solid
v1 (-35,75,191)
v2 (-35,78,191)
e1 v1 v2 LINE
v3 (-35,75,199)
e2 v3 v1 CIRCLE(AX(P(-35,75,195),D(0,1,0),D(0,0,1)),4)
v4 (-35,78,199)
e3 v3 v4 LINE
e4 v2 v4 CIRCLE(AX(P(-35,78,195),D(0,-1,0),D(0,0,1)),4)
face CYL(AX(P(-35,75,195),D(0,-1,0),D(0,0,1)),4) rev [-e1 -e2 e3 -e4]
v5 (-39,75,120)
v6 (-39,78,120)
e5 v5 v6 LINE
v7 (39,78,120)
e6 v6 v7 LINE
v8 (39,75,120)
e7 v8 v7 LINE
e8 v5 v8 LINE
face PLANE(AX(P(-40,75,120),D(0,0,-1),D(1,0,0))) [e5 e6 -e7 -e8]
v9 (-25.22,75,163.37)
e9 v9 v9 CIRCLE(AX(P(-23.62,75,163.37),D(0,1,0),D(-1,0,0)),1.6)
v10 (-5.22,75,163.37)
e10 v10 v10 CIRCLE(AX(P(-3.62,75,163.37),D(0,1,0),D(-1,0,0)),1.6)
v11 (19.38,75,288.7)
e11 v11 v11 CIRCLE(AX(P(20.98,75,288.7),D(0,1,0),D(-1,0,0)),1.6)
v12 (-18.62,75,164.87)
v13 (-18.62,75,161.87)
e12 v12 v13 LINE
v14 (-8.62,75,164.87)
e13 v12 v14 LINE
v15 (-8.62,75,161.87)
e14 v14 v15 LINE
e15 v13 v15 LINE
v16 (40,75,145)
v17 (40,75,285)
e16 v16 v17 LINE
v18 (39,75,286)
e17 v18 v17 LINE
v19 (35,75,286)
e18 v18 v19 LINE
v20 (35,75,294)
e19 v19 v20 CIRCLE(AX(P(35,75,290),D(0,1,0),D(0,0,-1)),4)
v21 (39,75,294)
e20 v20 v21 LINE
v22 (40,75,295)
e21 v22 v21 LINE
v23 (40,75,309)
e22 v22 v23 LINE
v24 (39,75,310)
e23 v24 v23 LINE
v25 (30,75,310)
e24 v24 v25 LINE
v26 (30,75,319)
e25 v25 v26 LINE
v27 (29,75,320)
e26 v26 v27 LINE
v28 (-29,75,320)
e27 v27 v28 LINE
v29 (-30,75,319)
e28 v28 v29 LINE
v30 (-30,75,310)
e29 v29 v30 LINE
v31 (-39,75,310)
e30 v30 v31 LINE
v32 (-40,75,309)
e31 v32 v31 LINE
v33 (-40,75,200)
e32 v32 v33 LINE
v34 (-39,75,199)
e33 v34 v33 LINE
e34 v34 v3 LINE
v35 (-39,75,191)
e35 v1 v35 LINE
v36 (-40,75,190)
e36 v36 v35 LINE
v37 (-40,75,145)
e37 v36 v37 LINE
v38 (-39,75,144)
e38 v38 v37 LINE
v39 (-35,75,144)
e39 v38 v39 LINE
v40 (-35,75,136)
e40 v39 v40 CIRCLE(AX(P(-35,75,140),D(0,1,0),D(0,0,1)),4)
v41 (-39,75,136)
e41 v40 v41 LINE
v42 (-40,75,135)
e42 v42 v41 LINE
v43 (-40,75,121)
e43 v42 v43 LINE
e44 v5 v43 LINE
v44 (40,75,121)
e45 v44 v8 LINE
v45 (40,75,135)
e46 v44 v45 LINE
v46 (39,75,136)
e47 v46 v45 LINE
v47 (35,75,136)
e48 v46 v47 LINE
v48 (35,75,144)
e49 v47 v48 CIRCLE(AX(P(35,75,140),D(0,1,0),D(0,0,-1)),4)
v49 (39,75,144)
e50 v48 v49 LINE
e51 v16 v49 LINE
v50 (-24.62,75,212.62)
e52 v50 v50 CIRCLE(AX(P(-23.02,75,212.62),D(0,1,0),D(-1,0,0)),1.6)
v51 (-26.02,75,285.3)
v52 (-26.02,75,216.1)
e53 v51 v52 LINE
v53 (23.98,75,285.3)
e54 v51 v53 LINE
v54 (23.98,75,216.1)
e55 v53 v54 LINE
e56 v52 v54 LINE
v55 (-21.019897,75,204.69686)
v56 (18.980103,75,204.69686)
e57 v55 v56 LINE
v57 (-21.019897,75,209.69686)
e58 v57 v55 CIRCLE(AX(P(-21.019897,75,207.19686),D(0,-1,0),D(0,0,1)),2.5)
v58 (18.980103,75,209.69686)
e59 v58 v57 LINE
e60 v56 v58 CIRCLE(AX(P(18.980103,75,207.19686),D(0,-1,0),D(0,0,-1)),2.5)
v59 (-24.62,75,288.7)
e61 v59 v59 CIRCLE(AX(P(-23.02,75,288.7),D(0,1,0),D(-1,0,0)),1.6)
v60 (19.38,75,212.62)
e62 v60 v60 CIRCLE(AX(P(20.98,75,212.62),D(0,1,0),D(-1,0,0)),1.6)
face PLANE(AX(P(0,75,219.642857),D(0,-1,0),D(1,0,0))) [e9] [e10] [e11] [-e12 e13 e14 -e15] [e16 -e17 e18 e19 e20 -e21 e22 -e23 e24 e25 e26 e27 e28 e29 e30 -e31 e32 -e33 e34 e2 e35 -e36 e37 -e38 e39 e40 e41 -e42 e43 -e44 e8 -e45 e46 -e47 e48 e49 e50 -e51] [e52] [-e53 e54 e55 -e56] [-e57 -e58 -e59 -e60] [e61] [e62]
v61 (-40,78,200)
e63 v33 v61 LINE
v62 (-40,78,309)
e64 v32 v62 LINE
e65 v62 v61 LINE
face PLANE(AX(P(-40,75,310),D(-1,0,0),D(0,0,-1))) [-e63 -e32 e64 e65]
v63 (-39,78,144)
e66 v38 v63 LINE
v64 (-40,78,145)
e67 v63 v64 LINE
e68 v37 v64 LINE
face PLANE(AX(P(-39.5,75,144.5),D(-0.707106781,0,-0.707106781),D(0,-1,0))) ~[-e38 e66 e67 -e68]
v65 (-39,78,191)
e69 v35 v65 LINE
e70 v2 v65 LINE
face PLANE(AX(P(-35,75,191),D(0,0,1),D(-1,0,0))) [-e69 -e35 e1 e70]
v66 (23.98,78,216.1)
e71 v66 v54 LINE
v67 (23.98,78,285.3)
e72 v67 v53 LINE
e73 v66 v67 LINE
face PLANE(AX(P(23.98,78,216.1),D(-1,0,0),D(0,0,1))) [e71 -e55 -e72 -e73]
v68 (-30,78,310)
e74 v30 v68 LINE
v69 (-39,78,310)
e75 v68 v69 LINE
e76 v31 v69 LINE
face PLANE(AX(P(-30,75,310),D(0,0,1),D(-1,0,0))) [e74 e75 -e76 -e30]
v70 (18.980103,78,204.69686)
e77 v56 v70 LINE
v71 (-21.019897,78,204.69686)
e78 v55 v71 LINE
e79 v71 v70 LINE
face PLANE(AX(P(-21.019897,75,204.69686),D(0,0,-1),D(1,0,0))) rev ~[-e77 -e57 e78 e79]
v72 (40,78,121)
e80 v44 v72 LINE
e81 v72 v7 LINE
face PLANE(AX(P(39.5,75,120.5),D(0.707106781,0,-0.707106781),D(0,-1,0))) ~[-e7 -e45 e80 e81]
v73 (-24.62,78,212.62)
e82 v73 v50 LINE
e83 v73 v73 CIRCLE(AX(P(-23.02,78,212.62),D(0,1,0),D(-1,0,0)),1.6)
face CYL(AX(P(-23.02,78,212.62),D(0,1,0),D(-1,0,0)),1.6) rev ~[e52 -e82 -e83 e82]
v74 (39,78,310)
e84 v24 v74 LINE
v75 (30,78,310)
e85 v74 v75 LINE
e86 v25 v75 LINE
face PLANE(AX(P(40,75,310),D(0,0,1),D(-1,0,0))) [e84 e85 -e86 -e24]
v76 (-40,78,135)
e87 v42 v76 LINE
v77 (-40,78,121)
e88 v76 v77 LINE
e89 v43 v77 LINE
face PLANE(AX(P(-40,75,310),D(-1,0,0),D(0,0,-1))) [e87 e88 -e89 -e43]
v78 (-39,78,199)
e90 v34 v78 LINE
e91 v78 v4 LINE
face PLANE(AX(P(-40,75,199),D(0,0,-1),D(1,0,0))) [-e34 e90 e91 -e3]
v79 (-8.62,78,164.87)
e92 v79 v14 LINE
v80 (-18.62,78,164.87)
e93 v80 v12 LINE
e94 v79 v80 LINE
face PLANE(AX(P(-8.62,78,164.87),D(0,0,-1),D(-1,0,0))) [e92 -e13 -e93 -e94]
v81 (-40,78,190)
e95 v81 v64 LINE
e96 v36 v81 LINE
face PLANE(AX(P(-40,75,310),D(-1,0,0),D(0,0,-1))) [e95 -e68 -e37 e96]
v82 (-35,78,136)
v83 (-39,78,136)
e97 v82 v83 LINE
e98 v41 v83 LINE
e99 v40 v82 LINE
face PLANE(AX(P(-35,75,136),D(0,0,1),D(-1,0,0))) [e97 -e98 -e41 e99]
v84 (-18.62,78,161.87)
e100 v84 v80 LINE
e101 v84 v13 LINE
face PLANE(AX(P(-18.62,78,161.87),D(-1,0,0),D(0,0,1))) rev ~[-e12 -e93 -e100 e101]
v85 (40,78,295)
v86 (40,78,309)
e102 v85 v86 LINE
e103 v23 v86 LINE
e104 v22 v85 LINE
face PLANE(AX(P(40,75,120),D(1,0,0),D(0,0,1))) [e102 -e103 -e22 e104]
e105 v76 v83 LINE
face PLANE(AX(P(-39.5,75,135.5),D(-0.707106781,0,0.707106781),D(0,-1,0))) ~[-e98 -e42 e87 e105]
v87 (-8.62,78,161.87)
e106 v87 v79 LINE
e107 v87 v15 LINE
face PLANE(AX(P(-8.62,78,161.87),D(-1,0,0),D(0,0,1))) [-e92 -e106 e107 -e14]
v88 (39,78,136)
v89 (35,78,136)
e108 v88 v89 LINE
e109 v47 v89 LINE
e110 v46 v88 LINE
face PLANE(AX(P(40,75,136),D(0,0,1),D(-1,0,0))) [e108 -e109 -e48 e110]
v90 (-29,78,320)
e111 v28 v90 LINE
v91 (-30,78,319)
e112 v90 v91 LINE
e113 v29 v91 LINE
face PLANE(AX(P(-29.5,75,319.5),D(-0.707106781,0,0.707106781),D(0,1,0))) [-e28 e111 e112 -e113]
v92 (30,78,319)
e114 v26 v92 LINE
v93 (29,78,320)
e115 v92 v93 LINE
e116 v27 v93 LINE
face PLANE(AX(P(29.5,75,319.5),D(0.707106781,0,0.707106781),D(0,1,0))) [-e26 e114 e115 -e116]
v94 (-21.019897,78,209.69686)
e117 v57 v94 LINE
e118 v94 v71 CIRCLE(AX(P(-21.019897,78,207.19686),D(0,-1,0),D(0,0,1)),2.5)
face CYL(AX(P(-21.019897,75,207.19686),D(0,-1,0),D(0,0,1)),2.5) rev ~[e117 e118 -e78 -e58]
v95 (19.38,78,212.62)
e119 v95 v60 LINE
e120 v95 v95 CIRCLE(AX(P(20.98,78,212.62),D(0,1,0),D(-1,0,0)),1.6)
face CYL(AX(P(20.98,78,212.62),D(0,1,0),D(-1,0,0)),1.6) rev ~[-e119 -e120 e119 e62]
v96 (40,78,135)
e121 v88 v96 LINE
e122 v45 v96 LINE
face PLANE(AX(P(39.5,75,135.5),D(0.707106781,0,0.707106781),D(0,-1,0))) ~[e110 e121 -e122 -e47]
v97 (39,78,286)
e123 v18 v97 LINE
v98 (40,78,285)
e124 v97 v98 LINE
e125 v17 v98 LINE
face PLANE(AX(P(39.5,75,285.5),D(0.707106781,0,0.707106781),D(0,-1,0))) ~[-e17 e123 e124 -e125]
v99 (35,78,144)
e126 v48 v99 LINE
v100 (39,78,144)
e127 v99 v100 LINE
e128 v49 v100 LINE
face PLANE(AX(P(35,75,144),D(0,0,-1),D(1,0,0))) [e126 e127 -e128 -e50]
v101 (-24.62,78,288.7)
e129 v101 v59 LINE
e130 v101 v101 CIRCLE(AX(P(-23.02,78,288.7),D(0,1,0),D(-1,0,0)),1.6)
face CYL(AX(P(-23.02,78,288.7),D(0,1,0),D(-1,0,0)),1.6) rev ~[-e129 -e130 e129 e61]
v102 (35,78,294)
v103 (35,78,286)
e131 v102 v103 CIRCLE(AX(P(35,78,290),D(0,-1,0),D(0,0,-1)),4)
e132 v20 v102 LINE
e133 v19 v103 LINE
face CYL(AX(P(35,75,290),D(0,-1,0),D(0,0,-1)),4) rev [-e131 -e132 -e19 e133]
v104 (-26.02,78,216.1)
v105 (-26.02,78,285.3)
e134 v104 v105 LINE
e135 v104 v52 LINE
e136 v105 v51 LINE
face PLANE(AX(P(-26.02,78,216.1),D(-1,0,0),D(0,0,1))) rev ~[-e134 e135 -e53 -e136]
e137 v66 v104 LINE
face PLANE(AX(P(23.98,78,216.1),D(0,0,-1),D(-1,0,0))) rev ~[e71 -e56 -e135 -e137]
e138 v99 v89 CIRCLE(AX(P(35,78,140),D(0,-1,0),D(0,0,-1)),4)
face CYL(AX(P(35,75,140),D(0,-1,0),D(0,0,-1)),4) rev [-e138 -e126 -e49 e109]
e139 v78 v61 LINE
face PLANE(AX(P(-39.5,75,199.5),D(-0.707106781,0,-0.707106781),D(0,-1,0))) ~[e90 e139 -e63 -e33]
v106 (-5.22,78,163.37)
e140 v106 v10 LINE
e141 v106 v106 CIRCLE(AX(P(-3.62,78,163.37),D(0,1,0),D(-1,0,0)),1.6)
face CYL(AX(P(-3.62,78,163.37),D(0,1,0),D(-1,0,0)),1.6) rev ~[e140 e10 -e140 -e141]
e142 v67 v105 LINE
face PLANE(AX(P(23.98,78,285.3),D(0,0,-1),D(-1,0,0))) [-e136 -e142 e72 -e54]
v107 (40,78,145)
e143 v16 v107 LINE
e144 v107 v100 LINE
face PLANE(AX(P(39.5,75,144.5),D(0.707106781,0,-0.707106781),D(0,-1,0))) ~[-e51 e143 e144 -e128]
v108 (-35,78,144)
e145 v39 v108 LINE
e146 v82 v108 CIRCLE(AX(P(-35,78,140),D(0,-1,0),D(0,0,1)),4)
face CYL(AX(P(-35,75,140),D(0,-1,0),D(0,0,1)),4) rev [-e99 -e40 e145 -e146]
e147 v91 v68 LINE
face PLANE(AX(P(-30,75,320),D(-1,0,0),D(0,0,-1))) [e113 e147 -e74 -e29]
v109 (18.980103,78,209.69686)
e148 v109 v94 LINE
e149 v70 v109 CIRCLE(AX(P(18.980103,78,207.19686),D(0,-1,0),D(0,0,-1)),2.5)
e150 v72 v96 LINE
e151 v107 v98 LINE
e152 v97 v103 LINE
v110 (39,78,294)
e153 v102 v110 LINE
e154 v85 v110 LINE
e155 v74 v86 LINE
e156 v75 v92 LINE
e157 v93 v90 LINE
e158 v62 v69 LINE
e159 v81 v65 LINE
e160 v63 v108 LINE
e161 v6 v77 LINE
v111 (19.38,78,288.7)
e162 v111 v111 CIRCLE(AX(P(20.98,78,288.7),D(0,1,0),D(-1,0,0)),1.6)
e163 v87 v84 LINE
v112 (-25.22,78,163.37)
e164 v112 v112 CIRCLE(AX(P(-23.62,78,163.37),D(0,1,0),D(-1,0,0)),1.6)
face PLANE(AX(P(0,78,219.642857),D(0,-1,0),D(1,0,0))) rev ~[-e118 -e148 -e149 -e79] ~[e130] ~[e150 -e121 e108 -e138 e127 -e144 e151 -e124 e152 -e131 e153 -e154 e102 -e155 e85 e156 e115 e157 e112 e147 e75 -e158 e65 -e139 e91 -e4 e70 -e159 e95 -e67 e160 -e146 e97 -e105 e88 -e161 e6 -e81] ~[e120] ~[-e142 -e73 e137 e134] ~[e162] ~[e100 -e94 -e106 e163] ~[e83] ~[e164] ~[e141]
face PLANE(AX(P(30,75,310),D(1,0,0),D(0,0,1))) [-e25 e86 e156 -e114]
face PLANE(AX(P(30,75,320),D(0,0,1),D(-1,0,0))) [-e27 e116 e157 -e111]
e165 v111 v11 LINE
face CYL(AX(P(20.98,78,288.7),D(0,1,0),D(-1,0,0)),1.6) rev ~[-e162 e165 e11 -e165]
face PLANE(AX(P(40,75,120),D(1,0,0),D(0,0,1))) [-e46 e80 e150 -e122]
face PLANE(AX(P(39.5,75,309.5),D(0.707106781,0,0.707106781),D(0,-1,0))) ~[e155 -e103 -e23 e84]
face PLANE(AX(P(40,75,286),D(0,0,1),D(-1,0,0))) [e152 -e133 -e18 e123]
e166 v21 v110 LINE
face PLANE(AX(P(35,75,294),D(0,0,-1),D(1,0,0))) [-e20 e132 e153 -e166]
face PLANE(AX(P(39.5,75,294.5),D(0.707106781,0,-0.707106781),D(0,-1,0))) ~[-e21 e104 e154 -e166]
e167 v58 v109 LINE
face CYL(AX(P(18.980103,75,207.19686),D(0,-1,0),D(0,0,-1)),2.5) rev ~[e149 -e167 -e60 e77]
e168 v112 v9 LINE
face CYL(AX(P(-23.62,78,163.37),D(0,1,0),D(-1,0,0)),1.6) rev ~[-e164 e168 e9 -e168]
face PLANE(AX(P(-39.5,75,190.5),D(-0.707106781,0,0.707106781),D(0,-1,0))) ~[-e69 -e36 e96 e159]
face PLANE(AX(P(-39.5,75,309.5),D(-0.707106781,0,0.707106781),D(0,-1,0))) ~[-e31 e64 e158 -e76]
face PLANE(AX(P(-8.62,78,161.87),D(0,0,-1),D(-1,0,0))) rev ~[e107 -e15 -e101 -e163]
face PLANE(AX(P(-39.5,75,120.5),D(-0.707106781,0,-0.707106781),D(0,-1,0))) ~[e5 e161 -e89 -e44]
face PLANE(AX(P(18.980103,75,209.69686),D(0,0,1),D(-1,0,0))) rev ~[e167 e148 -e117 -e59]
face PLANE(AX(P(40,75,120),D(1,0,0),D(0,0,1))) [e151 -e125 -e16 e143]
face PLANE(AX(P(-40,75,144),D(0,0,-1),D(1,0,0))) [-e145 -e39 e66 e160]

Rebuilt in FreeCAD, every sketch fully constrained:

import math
import FreeCAD as App
import Part
import Sketcher

V = App.Vector


def edges_at(feature, points):
    """Names of the edges that pass closest to the given points."""
    edges = feature.Shape.Edges
    near = lambda p: min(range(len(edges)), key=lambda i: edges[i].distToShape(Part.Vertex(*p))[0])
    return sorted({f"Edge{near(p) + 1}" for p in points})


def add_polygon(sketch, points):
    """Adds a closed chain of lines whose ends are joined by coincident constraints."""
    first, n = sketch.GeometryCount, len(points)
    for a, b in zip(points, points[1:] + points[:1]):
        sketch.addGeometry(Part.LineSegment(App.Vector(*a, 0), App.Vector(*b, 0)), False)
    for i in range(n):
        sketch.addConstraint(Sketcher.Constraint("Coincident", first + i, 2, first + (i + 1) % n, 1))

doc = App.newDocument("Part")
body = doc.addObject("PartDesign::Body", "Body")

# Sketch on XZ plane
sketch1 = body.newObject("Sketcher::SketchObject", "Sketch")
sketch1.AttachmentSupport = (doc.getObject("XZ_Plane"), [""])
sketch1.MapMode = "FlatFace"
add_polygon(sketch1, [(30, 310), (40, 310), (40, 120), (-40, 120), (-40, 310), (-30, 310), (-30, 320), (30, 320)])  # lines 0-7
sketch1.addConstraint([
    Sketcher.Constraint("Horizontal", 0),
    Sketcher.Constraint("Vertical", 1),
    Sketcher.Constraint("Horizontal", 2),
    Sketcher.Constraint("Vertical", 3),
    Sketcher.Constraint("Horizontal", 4),
    Sketcher.Constraint("Vertical", 5),
    Sketcher.Constraint("Horizontal", 6),
    Sketcher.Constraint("Vertical", 7),
    Sketcher.Constraint("Symmetric", 0, 2, 3, 2, -2),
    Sketcher.Constraint("Equal", 0, 4),
    Sketcher.Constraint("Equal", 4, 5),
    Sketcher.Constraint("DistanceX", 0, 1, 0, 2, 10.0),
    Sketcher.Constraint("DistanceX", 2, 2, 2, 1, 80.0),
    Sketcher.Constraint("DistanceY", 1, 2, 1, 1, 190.0),
    Sketcher.Constraint("DistanceY", -1, 1, 0, 2, 310.0),
])
pad1 = body.newObject("PartDesign::Pad", "Pad")
pad1.Profile = sketch1
pad1.Length = 3
pad1.Reversed = True

# Sketch on XZ plane
sketch2 = body.newObject("Sketcher::SketchObject", "Sketch001")
sketch2.AttachmentSupport = (doc.getObject("XZ_Plane"), [""])
sketch2.MapMode = "FlatFace"
sketch2.addGeometry([
    Part.ArcOfCircle(Part.Circle(V(40, 290, 0), V(0, 0, 1), 4), math.radians(-90), math.radians(90)),  # 0
    Part.LineSegment(V(40, 286, 0), V(35, 286, 0)),  # 1
    Part.ArcOfCircle(Part.Circle(V(35, 290, 0), V(0, 0, 1), 4), math.radians(90), math.radians(270)),  # 2
    Part.LineSegment(V(35, 294, 0), V(40, 294, 0)),  # 3
    Part.ArcOfCircle(Part.Circle(V(40, 140, 0), V(0, 0, 1), 4), math.radians(-90), math.radians(90)),  # 4
    Part.LineSegment(V(40, 136, 0), V(35, 136, 0)),  # 5
    Part.ArcOfCircle(Part.Circle(V(35, 140, 0), V(0, 0, 1), 4), math.radians(90), math.radians(270)),  # 6
    Part.LineSegment(V(35, 144, 0), V(40, 144, 0)),  # 7
    Part.ArcOfCircle(Part.Circle(V(-40, 140, 0), V(0, 0, 1), 4), math.radians(90), math.radians(270)),  # 8
    Part.LineSegment(V(-40, 144, 0), V(-35, 144, 0)),  # 9
    Part.ArcOfCircle(Part.Circle(V(-35, 140, 0), V(0, 0, 1), 4), math.radians(-90), math.radians(90)),  # 10
    Part.LineSegment(V(-35, 136, 0), V(-40, 136, 0)),  # 11
    Part.ArcOfCircle(Part.Circle(V(-40, 195, 0), V(0, 0, 1), 4), math.radians(90), math.radians(270)),  # 12
    Part.LineSegment(V(-40, 199, 0), V(-35, 199, 0)),  # 13
    Part.ArcOfCircle(Part.Circle(V(-35, 195, 0), V(0, 0, 1), 4), math.radians(-90), math.radians(90)),  # 14
    Part.LineSegment(V(-35, 191, 0), V(-40, 191, 0)),  # 15
], False)
sketch2.addConstraint([
    Sketcher.Constraint("Tangent", 0, 1, 1, 1),
    Sketcher.Constraint("Tangent", 1, 2, 2, 2),
    Sketcher.Constraint("Tangent", 2, 1, 3, 1),
    Sketcher.Constraint("Tangent", 3, 2, 0, 2),
    Sketcher.Constraint("Tangent", 4, 1, 5, 1),
    Sketcher.Constraint("Tangent", 5, 2, 6, 2),
    Sketcher.Constraint("Tangent", 6, 1, 7, 1),
    Sketcher.Constraint("Tangent", 7, 2, 4, 2),
    Sketcher.Constraint("Tangent", 8, 1, 9, 1),
    Sketcher.Constraint("Tangent", 9, 2, 10, 2),
    Sketcher.Constraint("Tangent", 10, 1, 11, 1),
    Sketcher.Constraint("Tangent", 11, 2, 8, 2),
    Sketcher.Constraint("Tangent", 12, 1, 13, 1),
    Sketcher.Constraint("Tangent", 13, 2, 14, 2),
    Sketcher.Constraint("Tangent", 14, 1, 15, 1),
    Sketcher.Constraint("Tangent", 15, 2, 12, 2),
    Sketcher.Constraint("Horizontal", 1),
    Sketcher.Constraint("Horizontal", 3),
    Sketcher.Constraint("Horizontal", 5),
    Sketcher.Constraint("Horizontal", 7),
    Sketcher.Constraint("Horizontal", 9),
    Sketcher.Constraint("Horizontal", 11),
    Sketcher.Constraint("Horizontal", 13),
    Sketcher.Constraint("Horizontal", 15),
    Sketcher.Constraint("Equal", 2, 4),
    Sketcher.Constraint("Equal", 6, 8),
    Sketcher.Constraint("Equal", 10, 12),
    Sketcher.Constraint("Symmetric", 4, 3, 8, 3, -2),
    Sketcher.Constraint("Vertical", 0, 3, 4, 3),
    Sketcher.Constraint("Vertical", 2, 3, 6, 3),
    Sketcher.Constraint("Vertical", 8, 3, 12, 3),
    Sketcher.Constraint("Vertical", 10, 3, 14, 3),
    Sketcher.Constraint("Equal", 7, 9),
    Sketcher.Constraint("Radius", 0, 4.0),
    Sketcher.Constraint("DistanceX", 1, 2, 1, 1, 5.0),
    Sketcher.Constraint("DistanceX", -1, 1, 0, 3, 40.0),
    Sketcher.Constraint("DistanceY", -1, 1, 0, 3, 290.0),
    Sketcher.Constraint("DistanceY", -1, 1, 4, 3, 140.0),
    Sketcher.Constraint("DistanceY", -1, 1, 12, 3, 195.0),
])
pocket1 = body.newObject("PartDesign::Pocket", "Pocket")
pocket1.Profile = sketch2
pocket1.Type = "ThroughAll"
doc.recompute()

chamfer = body.newObject("PartDesign::Chamfer", "Chamfer")
chamfer.Base = (pocket1, edges_at(pocket1, [
    (40, 1.5, 310),
    (30, 1.5, 320),
    (40, 1.5, 294),
    (40, 1.5, 286),
    (-40, 1.5, 310),
    (-30, 1.5, 320),
    (40, 1.5, 144),
    (40, 1.5, 136),
    (40, 1.5, 120),
    (-40, 1.5, 120),
    (-40, 1.5, 136),
    (-40, 1.5, 144),
    (-40, 1.5, 191),
    (-40, 1.5, 199),
]))
chamfer.Size = 1

# Sketch on XZ plane
sketch3 = body.newObject("Sketcher::SketchObject", "Sketch002")
sketch3.AttachmentSupport = (doc.getObject("XZ_Plane"), [""])
sketch3.MapMode = "FlatFace"
sketch3.AttachmentOffset = App.Placement(V(0, 0, -3), App.Rotation())
sketch3.addGeometry(Part.Circle(V(-23.02, 212.62, 0), V(0, 0, 1), 1.6), False)  # 0
sketch3.addGeometry(Part.Circle(V(20.98, 212.62, 0), V(0, 0, 1), 1.6), False)  # 1
sketch3.addGeometry(Part.Circle(V(20.98, 288.7, 0), V(0, 0, 1), 1.6), False)  # 2
sketch3.addGeometry(Part.Circle(V(-23.02, 288.7, 0), V(0, 0, 1), 1.6), False)  # 3
add_polygon(sketch3, [(23.98, 285.3), (23.98, 216.1), (-26.02, 216.1), (-26.02, 285.3)])  # lines 4-7
sketch3.addConstraint([
    Sketcher.Constraint("Vertical", 4),
    Sketcher.Constraint("Horizontal", 5),
    Sketcher.Constraint("Vertical", 6),
    Sketcher.Constraint("Horizontal", 7),
    Sketcher.Constraint("Equal", 0, 1),
    Sketcher.Constraint("Equal", 1, 2),
    Sketcher.Constraint("Equal", 2, 3),
    Sketcher.Constraint("Horizontal", 0, 3, 1, 3),
    Sketcher.Constraint("Horizontal", 2, 3, 3, 3),
    Sketcher.Constraint("Vertical", 1, 3, 2, 3),
    Sketcher.Constraint("Vertical", 0, 3, 3, 3),
    Sketcher.Constraint("Diameter", 0, 3.2),
    Sketcher.Constraint("DistanceX", 5, 2, 5, 1, 50.0),
    Sketcher.Constraint("DistanceY", 4, 2, 4, 1, 69.2),
    Sketcher.Constraint("DistanceX", 0, 3, 1, 3, 44.0),
    Sketcher.Constraint("DistanceX", 1, 3, 4, 2, 3.0),
    Sketcher.Constraint("DistanceY", -1, 1, 2, 3, 288.7),
    Sketcher.Constraint("DistanceY", -1, 1, 4, 2, 216.1),
    Sketcher.Constraint("DistanceX", 0, 3, -1, 1, 23.02),
    Sketcher.Constraint("DistanceY", -1, 1, 0, 3, 212.62),
])
pocket2 = body.newObject("PartDesign::Pocket", "Pocket001")
pocket2.Profile = sketch3
pocket2.Type = "ThroughAll"
pocket2.Reversed = True

# Sketch on XZ plane
sketch4 = body.newObject("Sketcher::SketchObject", "Sketch003")
sketch4.AttachmentSupport = (doc.getObject("XZ_Plane"), [""])
sketch4.MapMode = "FlatFace"
sketch4.AttachmentOffset = App.Placement(V(0, 0, -3), App.Rotation())
sketch4.addGeometry(Part.Circle(V(-23.62, 163.37, 0), V(0, 0, 1), 1.6), False)  # 0
sketch4.addGeometry(Part.Circle(V(-3.62, 163.37, 0), V(0, 0, 1), 1.6), False)  # 1
add_polygon(sketch4, [(-8.62, 164.87), (-8.62, 161.87), (-18.62, 161.87), (-18.62, 164.87)])  # lines 2-5
sketch4.addConstraint([
    Sketcher.Constraint("Vertical", 2),
    Sketcher.Constraint("Horizontal", 3),
    Sketcher.Constraint("Vertical", 4),
    Sketcher.Constraint("Horizontal", 5),
    Sketcher.Constraint("Equal", 0, 1),
    Sketcher.Constraint("Horizontal", 0, 3, 1, 3),
    Sketcher.Constraint("Diameter", 0, 3.2),
    Sketcher.Constraint("DistanceX", 3, 2, 3, 1, 10.0),
    Sketcher.Constraint("DistanceY", 2, 2, 2, 1, 3.0),
    Sketcher.Constraint("DistanceX", 0, 3, 1, 3, 20.0),
    Sketcher.Constraint("DistanceX", 2, 2, 1, 3, 5.0),
    Sketcher.Constraint("DistanceY", 2, 2, 1, 3, 1.5),
    Sketcher.Constraint("DistanceX", 0, 3, -1, 1, 23.62),
    Sketcher.Constraint("DistanceY", -1, 1, 0, 3, 163.37),
])
pocket3 = body.newObject("PartDesign::Pocket", "Pocket002")
pocket3.Profile = sketch4
pocket3.Type = "ThroughAll"
pocket3.Reversed = True

# Sketch on XZ plane
sketch5 = body.newObject("Sketcher::SketchObject", "Sketch004")
sketch5.AttachmentSupport = (doc.getObject("XZ_Plane"), [""])
sketch5.MapMode = "FlatFace"
sketch5.addGeometry([
    Part.ArcOfCircle(Part.Circle(V(-21.019897, 207.19686, 0), V(0, 0, 1), 2.5), math.radians(90), math.radians(270)),
    Part.LineSegment(V(-21.019897, 204.69686, 0), V(18.980103, 204.69686, 0)),
    Part.ArcOfCircle(Part.Circle(V(18.980103, 207.19686, 0), V(0, 0, 1), 2.5), math.radians(-90), math.radians(90)),
    Part.LineSegment(V(18.980103, 209.69686, 0), V(-21.019897, 209.69686, 0)),
], False)
sketch5.addConstraint([
    Sketcher.Constraint("Tangent", 0, 2, 1, 1),
    Sketcher.Constraint("Tangent", 1, 2, 2, 1),
    Sketcher.Constraint("Tangent", 2, 2, 3, 1),
    Sketcher.Constraint("Tangent", 3, 2, 0, 1),
    Sketcher.Constraint("Horizontal", 1),
    Sketcher.Constraint("Horizontal", 3),
    Sketcher.Constraint("Radius", 0, 2.5),
    Sketcher.Constraint("DistanceX", 1, 1, 1, 2, 40.0),
    Sketcher.Constraint("DistanceY", -1, 1, 0, 3, 207.19686),
    Sketcher.Constraint("DistanceX", 0, 3, -1, 1, 21.019897),
])
pocket4 = body.newObject("PartDesign::Pocket", "Pocket003")
pocket4.Profile = sketch5
pocket4.Type = "ThroughAll"
body2 = doc.addObject("PartDesign::Body", "Body001")
doc.recompute()

body.Placement = App.Placement(V(0, 75, 0), App.Rotation(V(0, 0, 1), 0))
boolean = body2.newObject("PartDesign::Boolean", "Boolean")
boolean.Type = "Fuse"
boolean.addObjects([body])

doc.recompute()
